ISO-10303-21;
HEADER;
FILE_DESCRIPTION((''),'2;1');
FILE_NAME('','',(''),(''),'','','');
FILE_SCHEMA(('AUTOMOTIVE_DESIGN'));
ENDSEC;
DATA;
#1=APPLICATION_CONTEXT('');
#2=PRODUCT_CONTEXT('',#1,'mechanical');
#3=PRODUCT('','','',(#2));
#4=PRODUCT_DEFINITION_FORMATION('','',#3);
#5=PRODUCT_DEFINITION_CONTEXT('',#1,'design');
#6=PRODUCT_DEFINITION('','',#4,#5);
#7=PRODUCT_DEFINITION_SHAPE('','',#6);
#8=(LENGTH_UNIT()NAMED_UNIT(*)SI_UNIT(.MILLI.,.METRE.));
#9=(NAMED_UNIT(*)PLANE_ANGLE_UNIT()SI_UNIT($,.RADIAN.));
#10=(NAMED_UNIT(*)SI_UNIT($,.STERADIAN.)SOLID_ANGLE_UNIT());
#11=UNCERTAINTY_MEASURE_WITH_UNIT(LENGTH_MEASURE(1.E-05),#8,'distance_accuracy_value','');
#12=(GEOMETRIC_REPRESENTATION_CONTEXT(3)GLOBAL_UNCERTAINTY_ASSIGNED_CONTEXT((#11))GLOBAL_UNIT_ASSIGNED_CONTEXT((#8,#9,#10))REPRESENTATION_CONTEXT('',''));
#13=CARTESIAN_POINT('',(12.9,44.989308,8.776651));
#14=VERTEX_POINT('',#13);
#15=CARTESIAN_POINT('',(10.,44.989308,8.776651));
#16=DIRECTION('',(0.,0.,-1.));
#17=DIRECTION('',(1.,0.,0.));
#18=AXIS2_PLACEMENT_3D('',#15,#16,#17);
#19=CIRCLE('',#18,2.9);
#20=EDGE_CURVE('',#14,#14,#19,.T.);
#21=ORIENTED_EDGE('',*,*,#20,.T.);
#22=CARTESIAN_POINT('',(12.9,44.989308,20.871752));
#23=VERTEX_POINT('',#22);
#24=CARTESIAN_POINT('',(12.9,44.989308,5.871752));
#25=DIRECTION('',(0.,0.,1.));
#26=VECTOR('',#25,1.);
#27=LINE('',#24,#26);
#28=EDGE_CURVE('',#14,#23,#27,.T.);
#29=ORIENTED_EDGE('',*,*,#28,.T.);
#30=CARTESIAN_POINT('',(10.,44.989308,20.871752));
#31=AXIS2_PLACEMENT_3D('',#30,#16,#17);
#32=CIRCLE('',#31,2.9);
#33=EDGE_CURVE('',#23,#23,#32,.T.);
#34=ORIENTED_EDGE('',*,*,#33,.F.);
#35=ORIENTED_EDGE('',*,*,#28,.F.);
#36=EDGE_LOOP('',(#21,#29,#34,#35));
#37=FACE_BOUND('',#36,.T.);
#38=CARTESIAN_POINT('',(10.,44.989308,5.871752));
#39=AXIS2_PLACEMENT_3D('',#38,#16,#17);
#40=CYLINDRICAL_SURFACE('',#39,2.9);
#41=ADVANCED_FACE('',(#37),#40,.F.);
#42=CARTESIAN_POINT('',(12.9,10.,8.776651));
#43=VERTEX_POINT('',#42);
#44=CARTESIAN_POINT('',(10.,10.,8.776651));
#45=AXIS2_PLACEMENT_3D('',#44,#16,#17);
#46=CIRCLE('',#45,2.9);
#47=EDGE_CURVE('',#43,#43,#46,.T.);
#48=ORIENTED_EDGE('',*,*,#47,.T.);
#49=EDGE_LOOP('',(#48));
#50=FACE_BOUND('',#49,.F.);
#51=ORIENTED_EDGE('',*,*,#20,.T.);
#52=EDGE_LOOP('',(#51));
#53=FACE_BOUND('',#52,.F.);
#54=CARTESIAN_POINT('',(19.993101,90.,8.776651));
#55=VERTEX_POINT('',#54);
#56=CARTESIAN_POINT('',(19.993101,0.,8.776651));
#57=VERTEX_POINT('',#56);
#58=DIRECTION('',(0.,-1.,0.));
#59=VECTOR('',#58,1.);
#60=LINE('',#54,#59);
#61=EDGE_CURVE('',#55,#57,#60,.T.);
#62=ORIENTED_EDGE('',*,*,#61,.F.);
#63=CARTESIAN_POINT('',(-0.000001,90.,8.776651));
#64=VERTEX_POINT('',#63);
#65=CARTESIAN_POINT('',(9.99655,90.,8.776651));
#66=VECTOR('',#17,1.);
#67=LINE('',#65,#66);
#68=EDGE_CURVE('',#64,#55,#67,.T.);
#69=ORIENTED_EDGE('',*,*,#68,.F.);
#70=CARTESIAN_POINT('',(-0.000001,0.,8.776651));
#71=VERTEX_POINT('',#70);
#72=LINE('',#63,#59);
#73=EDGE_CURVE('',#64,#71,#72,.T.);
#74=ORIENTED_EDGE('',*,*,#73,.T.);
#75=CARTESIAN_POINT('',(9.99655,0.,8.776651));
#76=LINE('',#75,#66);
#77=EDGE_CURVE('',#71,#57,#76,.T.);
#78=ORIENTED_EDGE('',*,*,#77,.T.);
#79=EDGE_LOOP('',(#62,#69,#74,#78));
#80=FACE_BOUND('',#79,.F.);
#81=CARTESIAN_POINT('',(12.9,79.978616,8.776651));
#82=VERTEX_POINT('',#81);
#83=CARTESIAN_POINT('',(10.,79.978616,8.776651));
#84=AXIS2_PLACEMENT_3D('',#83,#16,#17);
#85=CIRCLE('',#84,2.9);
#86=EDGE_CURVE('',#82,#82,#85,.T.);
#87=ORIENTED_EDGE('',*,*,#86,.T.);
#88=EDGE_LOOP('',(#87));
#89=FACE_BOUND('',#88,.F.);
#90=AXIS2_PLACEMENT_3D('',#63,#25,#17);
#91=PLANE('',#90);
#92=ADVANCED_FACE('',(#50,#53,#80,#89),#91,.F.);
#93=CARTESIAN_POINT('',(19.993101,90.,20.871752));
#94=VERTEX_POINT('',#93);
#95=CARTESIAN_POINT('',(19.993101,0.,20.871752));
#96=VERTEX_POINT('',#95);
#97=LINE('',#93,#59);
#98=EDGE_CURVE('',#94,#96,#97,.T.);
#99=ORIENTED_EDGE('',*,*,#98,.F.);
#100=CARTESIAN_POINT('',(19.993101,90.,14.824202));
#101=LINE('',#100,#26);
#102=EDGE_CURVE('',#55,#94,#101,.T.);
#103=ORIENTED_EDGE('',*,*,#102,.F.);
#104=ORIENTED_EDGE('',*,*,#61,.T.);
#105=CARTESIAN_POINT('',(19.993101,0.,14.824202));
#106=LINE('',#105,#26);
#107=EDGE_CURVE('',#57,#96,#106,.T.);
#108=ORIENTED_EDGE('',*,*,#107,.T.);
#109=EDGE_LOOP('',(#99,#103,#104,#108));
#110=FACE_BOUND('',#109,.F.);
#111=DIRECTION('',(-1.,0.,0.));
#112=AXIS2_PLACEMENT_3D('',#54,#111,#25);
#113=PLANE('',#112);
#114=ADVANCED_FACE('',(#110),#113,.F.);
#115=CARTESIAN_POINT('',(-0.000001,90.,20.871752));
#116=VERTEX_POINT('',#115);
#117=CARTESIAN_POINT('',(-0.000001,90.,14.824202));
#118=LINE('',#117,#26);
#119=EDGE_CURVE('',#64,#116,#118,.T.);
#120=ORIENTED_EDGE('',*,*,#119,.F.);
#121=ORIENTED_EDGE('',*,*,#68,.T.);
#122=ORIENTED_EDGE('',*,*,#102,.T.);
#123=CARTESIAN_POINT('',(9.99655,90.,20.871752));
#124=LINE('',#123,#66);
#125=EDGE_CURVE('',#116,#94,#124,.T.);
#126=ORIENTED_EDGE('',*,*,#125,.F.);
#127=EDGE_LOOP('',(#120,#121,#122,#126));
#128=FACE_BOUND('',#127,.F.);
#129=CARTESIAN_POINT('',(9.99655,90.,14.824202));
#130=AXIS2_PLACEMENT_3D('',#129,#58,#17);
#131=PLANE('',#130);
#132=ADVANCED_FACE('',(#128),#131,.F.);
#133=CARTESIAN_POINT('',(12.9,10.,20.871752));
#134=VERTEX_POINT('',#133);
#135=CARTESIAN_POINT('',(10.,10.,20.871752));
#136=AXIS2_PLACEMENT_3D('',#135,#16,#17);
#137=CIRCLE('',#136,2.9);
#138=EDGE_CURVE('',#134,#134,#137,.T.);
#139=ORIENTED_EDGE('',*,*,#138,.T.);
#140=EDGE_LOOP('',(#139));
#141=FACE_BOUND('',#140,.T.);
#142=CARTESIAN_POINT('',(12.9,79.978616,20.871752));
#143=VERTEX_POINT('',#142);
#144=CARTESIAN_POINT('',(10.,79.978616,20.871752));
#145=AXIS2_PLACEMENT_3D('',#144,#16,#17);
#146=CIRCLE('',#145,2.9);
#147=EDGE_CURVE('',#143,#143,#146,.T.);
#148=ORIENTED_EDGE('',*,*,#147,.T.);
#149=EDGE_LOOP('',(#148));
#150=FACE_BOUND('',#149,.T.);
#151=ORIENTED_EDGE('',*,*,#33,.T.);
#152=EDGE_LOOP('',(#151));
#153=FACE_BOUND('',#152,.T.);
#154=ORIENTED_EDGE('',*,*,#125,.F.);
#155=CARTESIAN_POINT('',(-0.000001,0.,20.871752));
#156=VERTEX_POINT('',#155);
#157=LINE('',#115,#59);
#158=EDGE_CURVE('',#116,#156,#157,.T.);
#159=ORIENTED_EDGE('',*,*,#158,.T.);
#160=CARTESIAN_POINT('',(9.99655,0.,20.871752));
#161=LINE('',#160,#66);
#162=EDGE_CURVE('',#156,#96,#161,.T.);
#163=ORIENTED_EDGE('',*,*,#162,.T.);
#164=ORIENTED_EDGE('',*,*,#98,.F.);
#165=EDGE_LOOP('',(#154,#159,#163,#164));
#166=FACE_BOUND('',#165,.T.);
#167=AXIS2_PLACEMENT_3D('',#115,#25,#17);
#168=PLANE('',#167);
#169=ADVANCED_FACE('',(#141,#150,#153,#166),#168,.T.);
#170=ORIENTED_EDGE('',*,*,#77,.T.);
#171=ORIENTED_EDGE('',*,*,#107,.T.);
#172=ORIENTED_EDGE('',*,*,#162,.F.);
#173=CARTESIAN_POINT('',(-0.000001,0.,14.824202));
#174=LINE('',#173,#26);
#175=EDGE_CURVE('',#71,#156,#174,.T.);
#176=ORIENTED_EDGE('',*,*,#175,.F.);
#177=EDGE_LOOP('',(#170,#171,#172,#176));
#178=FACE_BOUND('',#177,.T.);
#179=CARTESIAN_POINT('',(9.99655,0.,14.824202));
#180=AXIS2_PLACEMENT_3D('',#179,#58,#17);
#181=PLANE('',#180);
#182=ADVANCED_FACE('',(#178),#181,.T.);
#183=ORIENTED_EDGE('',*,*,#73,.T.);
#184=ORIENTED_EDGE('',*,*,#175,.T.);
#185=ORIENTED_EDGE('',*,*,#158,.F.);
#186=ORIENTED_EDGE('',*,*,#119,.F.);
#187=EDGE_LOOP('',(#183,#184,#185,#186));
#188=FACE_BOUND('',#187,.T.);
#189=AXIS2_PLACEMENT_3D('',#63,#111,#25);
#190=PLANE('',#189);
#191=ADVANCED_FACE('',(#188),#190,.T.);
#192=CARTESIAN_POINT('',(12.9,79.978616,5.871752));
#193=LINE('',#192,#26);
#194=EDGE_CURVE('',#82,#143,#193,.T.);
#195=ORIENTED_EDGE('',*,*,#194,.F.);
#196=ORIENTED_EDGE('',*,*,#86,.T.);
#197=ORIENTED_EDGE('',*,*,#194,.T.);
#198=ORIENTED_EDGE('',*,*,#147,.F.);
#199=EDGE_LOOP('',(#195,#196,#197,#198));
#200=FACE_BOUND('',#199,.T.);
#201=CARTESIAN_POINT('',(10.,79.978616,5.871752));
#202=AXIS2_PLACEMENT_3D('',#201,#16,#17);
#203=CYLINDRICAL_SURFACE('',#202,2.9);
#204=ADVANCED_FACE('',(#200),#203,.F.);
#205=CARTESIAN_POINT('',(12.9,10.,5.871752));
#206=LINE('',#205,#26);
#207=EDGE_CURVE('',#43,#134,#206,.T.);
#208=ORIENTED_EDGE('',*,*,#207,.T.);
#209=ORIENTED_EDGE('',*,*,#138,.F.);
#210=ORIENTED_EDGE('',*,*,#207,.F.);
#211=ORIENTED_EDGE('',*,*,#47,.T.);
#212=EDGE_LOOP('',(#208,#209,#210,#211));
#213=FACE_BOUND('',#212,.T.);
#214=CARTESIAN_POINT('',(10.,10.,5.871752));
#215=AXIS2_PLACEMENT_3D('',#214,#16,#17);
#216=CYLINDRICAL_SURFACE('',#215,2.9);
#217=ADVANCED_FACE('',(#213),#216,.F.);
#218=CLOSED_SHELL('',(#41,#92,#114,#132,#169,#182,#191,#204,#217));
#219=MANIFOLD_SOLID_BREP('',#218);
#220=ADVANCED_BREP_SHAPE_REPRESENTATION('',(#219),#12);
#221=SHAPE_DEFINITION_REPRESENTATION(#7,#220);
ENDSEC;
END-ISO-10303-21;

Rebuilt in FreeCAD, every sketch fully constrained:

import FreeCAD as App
import Part
import Sketcher

doc = App.newDocument("Part")
body = doc.addObject("PartDesign::Body", "Body")
body.AllowCompound = True

sketch1 = body.newObject("Sketcher::SketchObject", "Sketch")
sketch1.AttachmentSupport = (doc.getObject("XY_Plane"), [""])
sketch1.MapMode = "FlatFace"
sketch1.AttachmentOffset = App.Placement(App.Vector(0, 0, 20.871752), App.Rotation())
sketch1.addGeometry([
    Part.Circle(App.Vector(10, -80, 0), App.Vector(0, 0, 1), 2.9),
    Part.Circle(App.Vector(10, -45, 0), App.Vector(0, 0, 1), 2.9),
    Part.Circle(App.Vector(10, -10, 0), App.Vector(0, 0, 1), 2.9),
], False)
sketch1.addConstraint([
    Sketcher.Constraint("Equal", 0, 1),
    Sketcher.Constraint("Equal", 1, 2),
    Sketcher.Constraint("Vertical", 0, 3, 1, 3),
    Sketcher.Constraint("Vertical", 1, 3, 2, 3),
    Sketcher.Constraint("Diameter", 0, 5.8),
    Sketcher.Constraint("DistanceX", -1, 1, 0, 3, 10.0),
    Sketcher.Constraint("DistanceY", 0, 3, -1, 1, 80.0),
    Sketcher.Constraint("DistanceY", 1, 3, -1, 1, 45.010692),
    Sketcher.Constraint("DistanceY", 2, 3, -1, 1, 10.021384),
])
pad1 = body.newObject("PartDesign::Pad", "Pad")
pad1.Profile = sketch1
pad1.Length = 20
body2 = doc.addObject("PartDesign::Body", "Body001")
body2.AllowCompound = True
doc.recompute()

body.Placement = App.Placement(App.Vector(0, 0, -15), App.Rotation(App.Vector(0, 0, 1), 0))
boolean = body2.newObject("PartDesign::Boolean", "Boolean")
boolean.Type = "Fuse"
boolean.addObjects([body])
body3 = doc.addObject("PartDesign::Body", "Body002")

sketch2 = body3.newObject("Sketcher::SketchObject", "Sketch001")
sketch2.AttachmentSupport = (doc.getObject("XZ_Plane002"), [""])
sketch2.MapMode = "FlatFace"
sketch2.addGeometry([
    Part.LineSegment(App.Vector(0, 21, 0), App.Vector(0, 9, 0)),
    Part.LineSegment(App.Vector(0, 9, 0), App.Vector(20, 9, 0)),
    Part.LineSegment(App.Vector(20, 9, 0), App.Vector(20, 21, 0)),
    Part.LineSegment(App.Vector(20, 21, 0), App.Vector(0, 21, 0)),
], False)
sketch2.addConstraint([
    Sketcher.Constraint("Coincident", 0, 2, 1, 1),
    Sketcher.Constraint("Coincident", 1, 2, 2, 1),
    Sketcher.Constraint("Coincident", 2, 2, 3, 1),
    Sketcher.Constraint("Coincident", 3, 2, 0, 1),
    Sketcher.Constraint("Vertical", 0),
    Sketcher.Constraint("Horizontal", 1),
    Sketcher.Constraint("Vertical", 2),
    Sketcher.Constraint("Horizontal", 3),
    Sketcher.Constraint("PointOnObject", 0, 2, -2),
    Sketcher.Constraint("DistanceX", 1, 1, 1, 2, 19.993101),
    Sketcher.Constraint("DistanceY", 0, 2, 0, 1, 12.095101),
    Sketcher.Constraint("DistanceY", -1, 1, 0, 2, 8.776651),
])
pad2 = body3.newObject("PartDesign::Pad", "Pad001")
pad2.Profile = sketch2
pad2.Length = 90
doc.recompute()

boolean2 = body3.newObject("PartDesign::Boolean", "Boolean001")
boolean2.Type = "Cut"
boolean2.addObjects([body2])
body4 = doc.addObject("PartDesign::Body", "Body003")
doc.recompute()

body3.Placement = App.Placement(App.Vector(0, 90, 0), App.Rotation(App.Vector(0, 0, 1), 0))
boolean3 = body4.newObject("PartDesign::Boolean", "Boolean002")
boolean3.Type = "Fuse"
boolean3.addObjects([body3])

doc.recompute()
